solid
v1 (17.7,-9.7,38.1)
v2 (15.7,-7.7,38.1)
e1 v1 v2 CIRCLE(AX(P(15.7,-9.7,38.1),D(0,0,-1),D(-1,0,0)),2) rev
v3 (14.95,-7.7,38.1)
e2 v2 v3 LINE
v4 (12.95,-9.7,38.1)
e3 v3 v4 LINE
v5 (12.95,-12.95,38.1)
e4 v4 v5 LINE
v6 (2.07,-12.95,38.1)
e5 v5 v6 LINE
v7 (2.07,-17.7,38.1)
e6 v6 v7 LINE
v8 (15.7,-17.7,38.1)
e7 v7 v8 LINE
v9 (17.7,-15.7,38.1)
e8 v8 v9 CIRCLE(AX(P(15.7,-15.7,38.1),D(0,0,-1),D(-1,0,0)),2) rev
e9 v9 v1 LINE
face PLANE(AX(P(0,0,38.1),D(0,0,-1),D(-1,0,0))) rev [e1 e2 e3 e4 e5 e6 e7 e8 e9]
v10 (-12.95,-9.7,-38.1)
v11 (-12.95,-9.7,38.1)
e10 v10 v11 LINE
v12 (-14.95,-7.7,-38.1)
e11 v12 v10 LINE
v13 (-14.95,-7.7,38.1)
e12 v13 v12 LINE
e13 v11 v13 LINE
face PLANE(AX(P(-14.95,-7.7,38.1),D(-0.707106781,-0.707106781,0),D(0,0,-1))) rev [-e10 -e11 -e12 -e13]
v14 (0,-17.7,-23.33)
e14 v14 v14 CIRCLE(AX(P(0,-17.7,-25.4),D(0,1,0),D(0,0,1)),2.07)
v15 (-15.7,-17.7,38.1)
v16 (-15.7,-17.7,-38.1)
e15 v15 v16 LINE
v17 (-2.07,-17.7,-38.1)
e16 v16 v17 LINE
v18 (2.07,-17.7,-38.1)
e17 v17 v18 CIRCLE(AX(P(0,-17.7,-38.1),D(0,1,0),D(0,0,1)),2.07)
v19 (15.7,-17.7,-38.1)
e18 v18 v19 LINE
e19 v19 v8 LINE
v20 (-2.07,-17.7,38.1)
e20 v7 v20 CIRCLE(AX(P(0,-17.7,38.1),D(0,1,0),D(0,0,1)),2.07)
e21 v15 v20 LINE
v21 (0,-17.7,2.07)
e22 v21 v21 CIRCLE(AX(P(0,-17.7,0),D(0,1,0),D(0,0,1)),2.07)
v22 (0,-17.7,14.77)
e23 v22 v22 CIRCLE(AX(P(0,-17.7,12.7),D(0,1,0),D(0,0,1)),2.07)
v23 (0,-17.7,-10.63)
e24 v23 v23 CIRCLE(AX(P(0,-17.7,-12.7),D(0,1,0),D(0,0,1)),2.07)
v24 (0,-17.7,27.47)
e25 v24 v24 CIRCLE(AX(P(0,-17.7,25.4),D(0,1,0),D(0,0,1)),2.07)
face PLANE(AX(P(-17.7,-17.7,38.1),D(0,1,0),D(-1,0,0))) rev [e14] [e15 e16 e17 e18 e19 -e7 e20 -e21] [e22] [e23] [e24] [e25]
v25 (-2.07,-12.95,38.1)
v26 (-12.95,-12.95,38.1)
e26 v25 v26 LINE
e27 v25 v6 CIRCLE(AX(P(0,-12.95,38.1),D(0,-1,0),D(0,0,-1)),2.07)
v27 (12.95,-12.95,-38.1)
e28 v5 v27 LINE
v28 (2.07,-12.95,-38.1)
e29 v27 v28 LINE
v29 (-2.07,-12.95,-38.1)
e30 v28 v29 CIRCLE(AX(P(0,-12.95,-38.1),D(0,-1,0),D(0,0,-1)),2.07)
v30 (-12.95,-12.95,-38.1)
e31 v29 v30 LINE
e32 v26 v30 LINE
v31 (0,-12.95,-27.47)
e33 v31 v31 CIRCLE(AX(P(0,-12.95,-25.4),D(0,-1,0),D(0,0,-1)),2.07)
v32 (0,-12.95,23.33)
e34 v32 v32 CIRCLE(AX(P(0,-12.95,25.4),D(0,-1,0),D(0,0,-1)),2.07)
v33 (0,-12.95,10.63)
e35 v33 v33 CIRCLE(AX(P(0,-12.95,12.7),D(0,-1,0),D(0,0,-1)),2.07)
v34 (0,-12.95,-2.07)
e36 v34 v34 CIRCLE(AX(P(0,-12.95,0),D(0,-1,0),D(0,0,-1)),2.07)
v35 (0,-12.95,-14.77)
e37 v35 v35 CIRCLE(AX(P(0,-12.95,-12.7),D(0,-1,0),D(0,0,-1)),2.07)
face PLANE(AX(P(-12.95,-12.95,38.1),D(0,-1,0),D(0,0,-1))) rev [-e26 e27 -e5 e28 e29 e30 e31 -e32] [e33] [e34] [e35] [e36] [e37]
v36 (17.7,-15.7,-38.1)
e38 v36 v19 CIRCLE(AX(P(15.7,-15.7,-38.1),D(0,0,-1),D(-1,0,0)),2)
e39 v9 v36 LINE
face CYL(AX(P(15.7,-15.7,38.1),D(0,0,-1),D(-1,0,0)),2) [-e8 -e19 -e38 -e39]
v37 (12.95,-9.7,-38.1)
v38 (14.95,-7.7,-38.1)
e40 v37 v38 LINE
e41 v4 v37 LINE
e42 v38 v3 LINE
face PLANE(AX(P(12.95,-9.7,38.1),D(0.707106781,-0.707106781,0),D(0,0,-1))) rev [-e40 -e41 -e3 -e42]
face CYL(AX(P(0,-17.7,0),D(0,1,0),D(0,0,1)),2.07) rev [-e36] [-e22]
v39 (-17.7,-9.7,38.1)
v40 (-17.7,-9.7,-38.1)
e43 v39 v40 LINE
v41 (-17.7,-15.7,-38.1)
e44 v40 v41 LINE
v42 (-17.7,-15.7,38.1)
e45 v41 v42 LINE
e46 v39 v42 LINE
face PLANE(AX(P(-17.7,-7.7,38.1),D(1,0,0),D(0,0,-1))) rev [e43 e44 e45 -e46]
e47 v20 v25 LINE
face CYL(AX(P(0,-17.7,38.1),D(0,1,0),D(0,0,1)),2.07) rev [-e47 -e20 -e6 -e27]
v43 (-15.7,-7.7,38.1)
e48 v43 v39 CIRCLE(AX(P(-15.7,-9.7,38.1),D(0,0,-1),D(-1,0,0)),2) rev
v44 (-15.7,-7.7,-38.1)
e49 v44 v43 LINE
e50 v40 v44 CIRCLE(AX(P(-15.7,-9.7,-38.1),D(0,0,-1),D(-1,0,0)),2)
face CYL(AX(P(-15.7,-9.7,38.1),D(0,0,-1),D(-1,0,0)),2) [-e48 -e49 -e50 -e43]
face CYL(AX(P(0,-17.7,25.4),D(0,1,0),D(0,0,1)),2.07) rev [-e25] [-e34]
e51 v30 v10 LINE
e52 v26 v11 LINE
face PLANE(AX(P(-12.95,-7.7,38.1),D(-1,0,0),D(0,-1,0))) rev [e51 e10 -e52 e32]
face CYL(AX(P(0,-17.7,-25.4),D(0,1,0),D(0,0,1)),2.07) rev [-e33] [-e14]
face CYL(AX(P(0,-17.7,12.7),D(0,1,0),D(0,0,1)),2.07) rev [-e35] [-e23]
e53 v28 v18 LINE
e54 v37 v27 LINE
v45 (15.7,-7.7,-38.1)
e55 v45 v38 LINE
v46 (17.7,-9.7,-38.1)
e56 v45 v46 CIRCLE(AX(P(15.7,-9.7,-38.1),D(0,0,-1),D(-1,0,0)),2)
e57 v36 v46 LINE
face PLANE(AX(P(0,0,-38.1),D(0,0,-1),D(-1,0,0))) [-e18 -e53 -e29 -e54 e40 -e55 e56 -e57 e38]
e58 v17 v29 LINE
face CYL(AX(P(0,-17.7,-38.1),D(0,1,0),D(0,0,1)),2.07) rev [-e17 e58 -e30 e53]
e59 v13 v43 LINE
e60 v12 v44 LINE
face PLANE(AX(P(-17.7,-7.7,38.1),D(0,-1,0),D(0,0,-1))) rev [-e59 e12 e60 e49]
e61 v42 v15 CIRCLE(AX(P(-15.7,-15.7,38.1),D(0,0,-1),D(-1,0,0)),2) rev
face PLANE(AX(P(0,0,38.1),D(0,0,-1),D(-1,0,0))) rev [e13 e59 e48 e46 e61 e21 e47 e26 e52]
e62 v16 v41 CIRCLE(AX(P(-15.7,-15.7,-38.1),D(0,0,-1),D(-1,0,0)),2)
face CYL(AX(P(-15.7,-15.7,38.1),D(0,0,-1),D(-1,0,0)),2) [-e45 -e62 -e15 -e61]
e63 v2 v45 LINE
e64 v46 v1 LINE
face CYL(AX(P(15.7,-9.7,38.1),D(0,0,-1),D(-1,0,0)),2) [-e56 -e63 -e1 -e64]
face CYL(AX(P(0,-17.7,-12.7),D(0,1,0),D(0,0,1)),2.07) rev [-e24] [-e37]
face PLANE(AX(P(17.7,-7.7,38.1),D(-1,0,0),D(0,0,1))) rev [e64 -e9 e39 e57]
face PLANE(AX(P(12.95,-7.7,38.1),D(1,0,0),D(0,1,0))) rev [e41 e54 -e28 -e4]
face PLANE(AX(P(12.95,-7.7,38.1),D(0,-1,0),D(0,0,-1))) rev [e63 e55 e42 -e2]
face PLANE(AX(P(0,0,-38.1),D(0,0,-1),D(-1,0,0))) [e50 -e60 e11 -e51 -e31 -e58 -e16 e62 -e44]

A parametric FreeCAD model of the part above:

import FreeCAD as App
import Part
import Sketcher
Q = App.Units.Quantity


def edges_at(feature, points):
    """Names of the edges that pass closest to the given points."""
    edges = feature.Shape.Edges
    near = lambda p: min(range(len(edges)), key=lambda i: edges[i].distToShape(Part.Vertex(*p))[0])
    return sorted({f"Edge{near(p) + 1}" for p in points})

doc = App.newDocument("Part")
body = doc.addObject("PartDesign::Body", "Body")

sketch1 = body.newObject("Sketcher::SketchObject", "Sketch")
sketch1.AttachmentSupport = (doc.getObject("XY_Plane"), [""])
sketch1.MapMode = "FlatFace"
sketch1.addGeometry(Part.LineSegment(App.Vector(-17.7, -7.7, 0), App.Vector(-17.7, -17.7, 0)), False)
sketch1.addGeometry(Part.LineSegment(App.Vector(-17.7, -17.7, 0), App.Vector(17.7, -17.7, 0)), False)
sketch1.addGeometry(Part.LineSegment(App.Vector(17.7, -17.7, 0), App.Vector(17.7, -7.7, 0)), False)
sketch1.addGeometry(Part.LineSegment(App.Vector(17.7, -7.7, 0), App.Vector(12.9, -7.7, 0)), False)
sketch1.addGeometry(Part.LineSegment(App.Vector(12.9, -7.7, 0), App.Vector(12.9, -12.9, 0)), False)
sketch1.addGeometry(Part.LineSegment(App.Vector(12.9, -12.9, 0), App.Vector(-12.9, -12.9, 0)), False)
sketch1.addGeometry(Part.LineSegment(App.Vector(-12.9, -12.9, 0), App.Vector(-12.9, -7.7, 0)), False)
sketch1.addGeometry(Part.LineSegment(App.Vector(-12.9, -7.7, 0), App.Vector(-17.7, -7.7, 0)), False)
sketch1.addConstraint(Sketcher.Constraint("Coincident", 0, 2, 1, 1))
sketch1.addConstraint(Sketcher.Constraint("Coincident", 1, 2, 2, 1))
sketch1.addConstraint(Sketcher.Constraint("Coincident", 2, 2, 3, 1))
sketch1.addConstraint(Sketcher.Constraint("Coincident", 3, 2, 4, 1))
sketch1.addConstraint(Sketcher.Constraint("Coincident", 4, 2, 5, 1))
sketch1.addConstraint(Sketcher.Constraint("Coincident", 5, 2, 6, 1))
sketch1.addConstraint(Sketcher.Constraint("Coincident", 6, 2, 7, 1))
sketch1.addConstraint(Sketcher.Constraint("Coincident", 7, 2, 0, 1))
sketch1.addConstraint(Sketcher.Constraint("Vertical", 0))
sketch1.addConstraint(Sketcher.Constraint("Horizontal", 1))
sketch1.addConstraint(Sketcher.Constraint("Vertical", 2))
sketch1.addConstraint(Sketcher.Constraint("Horizontal", 3))
sketch1.addConstraint(Sketcher.Constraint("Vertical", 4))
sketch1.addConstraint(Sketcher.Constraint("Horizontal", 5))
sketch1.addConstraint(Sketcher.Constraint("Vertical", 6))
sketch1.addConstraint(Sketcher.Constraint("Horizontal", 7))
sketch1.addConstraint(Sketcher.Constraint("Symmetric", 3, 2, 6, 2, -2))
sketch1.addConstraint(Sketcher.Constraint("Equal", 3, 7))
sketch1.addConstraint(Sketcher.Constraint("DistanceY", 0, 2, 0, 1, Q("10 mm")))
sketch1.addConstraint(Sketcher.Constraint("DistanceX", 1, 1, 1, 2, Q("35.4 mm")))
sketch1.addConstraint(Sketcher.Constraint("DistanceX", 5, 2, 5, 1, Q("25.9 mm")))
sketch1.addConstraint(Sketcher.Constraint("DistanceY", 4, 2, 4, 1, Q("5.25 mm")))
sketch1.addConstraint(Sketcher.Constraint("DistanceY", 0, 2, -1, 1, Q("17.7 mm")))
pad1 = body.newObject("PartDesign::Pad", "Pad")
pad1.Profile = sketch1
pad1.Length = 76.2
pad1.Midplane = True

sketch2 = body.newObject("Sketcher::SketchObject", "Sketch001")
sketch2.AttachmentSupport = (doc.getObject("XZ_Plane"), [""])
sketch2.MapMode = "FlatFace"
sketch2.AttachmentOffset = App.Placement(App.Vector(0, 0, 12.95), App.Rotation())
sketch2.addGeometry(Part.Circle(App.Vector(0, -25.4, 0), App.Vector(0, 0, 1), 2.1), False)
sketch2.addGeometry(Part.Circle(App.Vector(0, -12.7, 0), App.Vector(0, 0, 1), 2.1), False)
sketch2.addGeometry(Part.Circle(App.Vector(0, 0, 0), App.Vector(0, 0, 1), 2.1), False)
sketch2.addGeometry(Part.Circle(App.Vector(0, 12.7, 0), App.Vector(0, 0, 1), 2.1), False)
sketch2.addGeometry(Part.Circle(App.Vector(0, 25.4, 0), App.Vector(0, 0, 1), 2.1), False)
sketch2.addGeometry(Part.Circle(App.Vector(0, 38.1, 0), App.Vector(0, 0, 1), 2.1), False)
sketch2.addGeometry(Part.Circle(App.Vector(0, -38.1, 0), App.Vector(0, 0, 1), 2.1), False)
sketch2.addConstraint(Sketcher.Constraint("Coincident", 2, 3, -1, 1))
sketch2.addConstraint(Sketcher.Constraint("Equal", 0, 1))
sketch2.addConstraint(Sketcher.Constraint("Equal", 1, 2))
sketch2.addConstraint(Sketcher.Constraint("Equal", 2, 3))
sketch2.addConstraint(Sketcher.Constraint("Equal", 3, 4))
sketch2.addConstraint(Sketcher.Constraint("Equal", 4, 5))
sketch2.addConstraint(Sketcher.Constraint("Equal", 5, 6))
sketch2.addConstraint(Sketcher.Constraint("Symmetric", 1, 3, 3, 3, -1, 1))
sketch2.addConstraint(Sketcher.Constraint("Symmetric", 0, 3, 4, 3, -1, 1))
sketch2.addConstraint(Sketcher.Constraint("Symmetric", 5, 3, 6, 3, -1, 1))
sketch2.addConstraint(Sketcher.Constraint("PointOnObject", 0, 3, -2))
sketch2.addConstraint(Sketcher.Constraint("PointOnObject", 1, 3, -2))
sketch2.addConstraint(Sketcher.Constraint("PointOnObject", 5, 3, -2))
sketch2.addConstraint(Sketcher.Constraint("Diameter", 0, Q("4.14 mm")))
sketch2.addConstraint(Sketcher.Constraint("DistanceY", 0, 3, -1, 1, Q("25.4 mm")))
sketch2.addConstraint(Sketcher.Constraint("DistanceY", 1, 3, -1, 1, Q("12.7 mm")))
sketch2.addConstraint(Sketcher.Constraint("DistanceY", -1, 1, 5, 3, Q("38.1 mm")))
pocket1 = body.newObject("PartDesign::Pocket", "Pocket")
pocket1.Profile = sketch2
pocket1.Type = "ThroughAll"
pocket1.Midplane = True
doc.recompute()

chamfer = body.newObject("PartDesign::Chamfer", "Chamfer")
chamfer.Base = (pocket1, edges_at(pocket1, [(-12.95, -7.7, 0), (12.95, -7.7, 0)]))
chamfer.Size = 2
doc.recompute()

fillet = body.newObject("PartDesign::Fillet", "Fillet")
fillet.Base = (chamfer, edges_at(chamfer, [
    (-17.7, -17.7, 0),
    (-17.7, -7.7, 0),
    (17.7, -7.7, 0),
    (17.7, -17.7, 0),
]))
fillet.Radius = 2

doc.recompute()
